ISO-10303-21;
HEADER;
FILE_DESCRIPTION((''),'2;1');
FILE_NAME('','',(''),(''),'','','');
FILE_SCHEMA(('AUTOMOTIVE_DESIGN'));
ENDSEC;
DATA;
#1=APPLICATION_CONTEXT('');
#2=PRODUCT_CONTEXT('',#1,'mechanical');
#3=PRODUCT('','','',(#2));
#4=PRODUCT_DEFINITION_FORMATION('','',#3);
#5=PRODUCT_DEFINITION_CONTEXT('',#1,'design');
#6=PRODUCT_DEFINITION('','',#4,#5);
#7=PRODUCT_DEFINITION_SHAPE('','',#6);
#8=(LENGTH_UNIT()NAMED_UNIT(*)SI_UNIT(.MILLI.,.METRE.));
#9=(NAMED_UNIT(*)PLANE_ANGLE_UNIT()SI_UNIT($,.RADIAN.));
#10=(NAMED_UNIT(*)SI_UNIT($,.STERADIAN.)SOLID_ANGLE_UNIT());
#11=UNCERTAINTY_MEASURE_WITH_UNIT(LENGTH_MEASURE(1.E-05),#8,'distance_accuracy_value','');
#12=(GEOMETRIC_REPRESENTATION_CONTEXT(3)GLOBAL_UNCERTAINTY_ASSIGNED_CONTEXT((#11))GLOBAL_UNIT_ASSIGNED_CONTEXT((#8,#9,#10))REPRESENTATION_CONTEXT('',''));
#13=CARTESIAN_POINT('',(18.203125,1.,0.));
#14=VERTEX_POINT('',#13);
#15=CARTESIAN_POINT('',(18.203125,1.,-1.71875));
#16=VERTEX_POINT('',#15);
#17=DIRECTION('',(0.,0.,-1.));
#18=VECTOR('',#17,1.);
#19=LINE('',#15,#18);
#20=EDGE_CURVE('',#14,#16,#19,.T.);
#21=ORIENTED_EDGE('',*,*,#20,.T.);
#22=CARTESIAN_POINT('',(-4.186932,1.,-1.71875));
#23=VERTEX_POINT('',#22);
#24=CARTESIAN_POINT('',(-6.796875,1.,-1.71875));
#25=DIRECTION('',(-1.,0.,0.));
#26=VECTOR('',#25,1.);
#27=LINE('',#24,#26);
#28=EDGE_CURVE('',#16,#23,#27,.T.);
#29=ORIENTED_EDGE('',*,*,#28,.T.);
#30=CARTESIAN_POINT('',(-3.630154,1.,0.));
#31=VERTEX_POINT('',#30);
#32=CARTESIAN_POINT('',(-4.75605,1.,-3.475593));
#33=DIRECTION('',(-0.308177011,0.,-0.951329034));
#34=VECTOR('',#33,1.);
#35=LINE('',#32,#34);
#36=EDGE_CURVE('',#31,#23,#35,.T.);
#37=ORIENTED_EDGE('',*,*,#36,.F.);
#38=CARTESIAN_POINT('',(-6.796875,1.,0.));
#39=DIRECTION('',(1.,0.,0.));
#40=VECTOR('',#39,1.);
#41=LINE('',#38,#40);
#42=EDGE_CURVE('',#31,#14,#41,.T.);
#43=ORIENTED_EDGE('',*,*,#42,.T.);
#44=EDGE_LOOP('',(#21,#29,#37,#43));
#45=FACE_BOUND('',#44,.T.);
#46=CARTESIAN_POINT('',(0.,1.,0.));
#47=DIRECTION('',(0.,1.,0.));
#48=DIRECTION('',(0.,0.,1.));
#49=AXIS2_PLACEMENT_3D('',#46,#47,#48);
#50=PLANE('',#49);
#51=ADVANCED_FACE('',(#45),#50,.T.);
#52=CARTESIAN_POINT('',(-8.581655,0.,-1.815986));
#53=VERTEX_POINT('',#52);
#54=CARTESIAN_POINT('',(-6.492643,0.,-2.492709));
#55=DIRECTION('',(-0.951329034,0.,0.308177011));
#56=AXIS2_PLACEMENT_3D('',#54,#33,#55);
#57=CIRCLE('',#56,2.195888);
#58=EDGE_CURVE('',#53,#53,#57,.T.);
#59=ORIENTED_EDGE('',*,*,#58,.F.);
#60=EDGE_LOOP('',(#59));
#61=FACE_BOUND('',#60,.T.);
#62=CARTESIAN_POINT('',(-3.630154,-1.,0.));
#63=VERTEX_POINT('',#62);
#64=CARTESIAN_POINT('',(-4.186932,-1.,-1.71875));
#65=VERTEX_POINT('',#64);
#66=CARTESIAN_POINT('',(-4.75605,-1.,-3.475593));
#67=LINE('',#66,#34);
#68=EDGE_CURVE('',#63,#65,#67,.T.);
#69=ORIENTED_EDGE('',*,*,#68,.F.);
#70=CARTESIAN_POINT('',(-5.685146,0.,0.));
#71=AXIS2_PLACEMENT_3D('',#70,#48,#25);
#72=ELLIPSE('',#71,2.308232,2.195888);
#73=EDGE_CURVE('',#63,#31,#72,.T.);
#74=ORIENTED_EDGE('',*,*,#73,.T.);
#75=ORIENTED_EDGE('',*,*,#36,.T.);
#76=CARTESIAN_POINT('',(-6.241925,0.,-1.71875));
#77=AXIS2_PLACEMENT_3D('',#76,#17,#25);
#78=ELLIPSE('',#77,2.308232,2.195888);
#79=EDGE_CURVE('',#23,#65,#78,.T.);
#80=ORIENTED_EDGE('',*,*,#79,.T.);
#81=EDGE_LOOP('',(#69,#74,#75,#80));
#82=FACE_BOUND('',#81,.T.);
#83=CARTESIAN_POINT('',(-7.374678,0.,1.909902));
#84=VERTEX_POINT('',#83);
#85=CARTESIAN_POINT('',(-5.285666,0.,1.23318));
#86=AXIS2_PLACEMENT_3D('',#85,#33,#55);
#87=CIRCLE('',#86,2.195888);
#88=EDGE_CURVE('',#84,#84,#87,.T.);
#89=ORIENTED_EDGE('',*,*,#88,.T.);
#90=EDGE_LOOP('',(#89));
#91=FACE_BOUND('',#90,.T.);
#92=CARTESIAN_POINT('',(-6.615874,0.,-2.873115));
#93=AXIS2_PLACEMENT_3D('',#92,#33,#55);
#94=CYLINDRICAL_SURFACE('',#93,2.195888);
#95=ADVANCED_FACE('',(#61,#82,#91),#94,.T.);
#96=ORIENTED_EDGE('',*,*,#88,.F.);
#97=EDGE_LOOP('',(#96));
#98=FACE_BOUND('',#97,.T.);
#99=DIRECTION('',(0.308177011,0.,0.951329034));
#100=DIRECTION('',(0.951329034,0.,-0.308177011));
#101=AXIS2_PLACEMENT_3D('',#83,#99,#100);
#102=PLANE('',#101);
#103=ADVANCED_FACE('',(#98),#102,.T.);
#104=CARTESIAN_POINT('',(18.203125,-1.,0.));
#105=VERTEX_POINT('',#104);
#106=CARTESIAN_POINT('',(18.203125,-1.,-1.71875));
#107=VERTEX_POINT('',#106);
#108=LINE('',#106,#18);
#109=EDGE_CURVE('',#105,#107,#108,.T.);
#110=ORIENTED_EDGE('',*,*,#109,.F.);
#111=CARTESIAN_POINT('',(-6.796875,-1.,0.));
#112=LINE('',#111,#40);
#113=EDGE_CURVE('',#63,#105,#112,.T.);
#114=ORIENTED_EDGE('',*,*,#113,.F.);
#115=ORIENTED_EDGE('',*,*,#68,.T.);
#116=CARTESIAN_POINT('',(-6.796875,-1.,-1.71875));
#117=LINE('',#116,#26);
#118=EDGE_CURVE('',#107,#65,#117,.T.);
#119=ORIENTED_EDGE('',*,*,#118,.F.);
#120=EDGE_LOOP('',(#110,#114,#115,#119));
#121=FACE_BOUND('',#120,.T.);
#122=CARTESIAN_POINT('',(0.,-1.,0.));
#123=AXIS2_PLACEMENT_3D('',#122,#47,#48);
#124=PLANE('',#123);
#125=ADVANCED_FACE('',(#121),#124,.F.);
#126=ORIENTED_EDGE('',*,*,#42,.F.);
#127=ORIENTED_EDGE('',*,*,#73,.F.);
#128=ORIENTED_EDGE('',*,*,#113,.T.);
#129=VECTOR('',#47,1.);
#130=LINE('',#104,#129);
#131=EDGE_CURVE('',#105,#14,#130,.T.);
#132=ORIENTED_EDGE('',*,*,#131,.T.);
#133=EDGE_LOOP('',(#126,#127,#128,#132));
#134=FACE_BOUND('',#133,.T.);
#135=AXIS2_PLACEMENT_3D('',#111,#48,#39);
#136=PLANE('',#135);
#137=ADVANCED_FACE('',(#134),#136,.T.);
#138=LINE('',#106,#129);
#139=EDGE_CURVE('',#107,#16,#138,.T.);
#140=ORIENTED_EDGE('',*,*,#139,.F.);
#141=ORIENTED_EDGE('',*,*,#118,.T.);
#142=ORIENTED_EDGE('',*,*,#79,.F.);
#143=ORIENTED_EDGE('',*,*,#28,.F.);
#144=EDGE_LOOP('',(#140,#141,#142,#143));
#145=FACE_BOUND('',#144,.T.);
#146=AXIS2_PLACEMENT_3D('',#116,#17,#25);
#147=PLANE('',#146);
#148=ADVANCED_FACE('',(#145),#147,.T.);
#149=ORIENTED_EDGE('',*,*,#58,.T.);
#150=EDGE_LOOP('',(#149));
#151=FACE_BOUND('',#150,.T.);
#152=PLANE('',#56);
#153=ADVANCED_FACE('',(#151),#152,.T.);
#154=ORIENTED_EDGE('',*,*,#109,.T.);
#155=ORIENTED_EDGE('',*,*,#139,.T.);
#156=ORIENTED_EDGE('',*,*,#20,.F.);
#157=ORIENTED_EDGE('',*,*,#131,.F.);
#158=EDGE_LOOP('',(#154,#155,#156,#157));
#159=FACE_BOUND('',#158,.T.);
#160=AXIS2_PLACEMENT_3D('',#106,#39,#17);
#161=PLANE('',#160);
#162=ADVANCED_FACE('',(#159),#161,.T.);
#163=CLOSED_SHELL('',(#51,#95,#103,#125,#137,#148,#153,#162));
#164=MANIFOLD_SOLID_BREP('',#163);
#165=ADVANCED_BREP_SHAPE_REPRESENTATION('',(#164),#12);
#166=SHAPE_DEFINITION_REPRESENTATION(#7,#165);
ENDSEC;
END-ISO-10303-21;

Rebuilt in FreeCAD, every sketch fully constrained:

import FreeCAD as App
import Part
import Sketcher
from FreeCAD import Vector
Q = App.Units.Quantity

doc = App.newDocument("Part")
body = doc.addObject("PartDesign::Body", "Body")

# Sketch on XZ plane
sketch1 = doc.addObject("Sketcher::SketchObject", "Sketch")
body.addObject(sketch1)
sketch1.AttachmentSupport = (doc.XZ_Plane, [""])
sketch1.MapMode = "FlatFace"
sketch1.addGeometry([
    Part.LineSegment(Vector(-6.796875, -1.71875, 0), Vector(-6.796875, 0, 0)),
    Part.LineSegment(Vector(-6.796875, 0, 0), Vector(18.203125, 0, 0)),
    Part.LineSegment(Vector(18.203125, 0, 0), Vector(18.203125, -1.71875, 0)),
    Part.LineSegment(Vector(18.203125, -1.71875, 0), Vector(-6.796875, -1.71875, 0)),
], False)
sketch1.addConstraint([
    Sketcher.Constraint("Coincident", 0, 2, 1, 1),
    Sketcher.Constraint("Coincident", 1, 2, 2, 1),
    Sketcher.Constraint("Coincident", 2, 2, 3, 1),
    Sketcher.Constraint("Coincident", 3, 2, 0, 1),
    Sketcher.Constraint("Vertical", 0),
    Sketcher.Constraint("Horizontal", 1),
    Sketcher.Constraint("Vertical", 2),
    Sketcher.Constraint("Horizontal", 3),
    Sketcher.Constraint("PointOnObject", 0, 2, -1),
    Sketcher.Constraint("DistanceX", 1, 1, 1, 2, Q("25 mm")),
    Sketcher.Constraint("DistanceY", 0, 1, 0, 2, Q("1.71875 mm")),
    Sketcher.Constraint("DistanceX", 0, 2, -1, 1, Q("6.796875 mm")),
])
pad1 = doc.addObject("PartDesign::Pad", "Pad")
body.addObject(pad1)
pad1.Profile = sketch1
pad1.Type = "TwoLengths"
pad1.Length = 1
pad1.Length2 = 1
pad1.Reversed = True

# Sketch on XZ plane
sketch2 = doc.addObject("Sketcher::SketchObject", "Sketch001")
body.addObject(sketch2)
sketch2.AttachmentSupport = (doc.XZ_Plane, [""])
sketch2.MapMode = "FlatFace"
sketch2.addGeometry([
    Part.LineSegment(Vector(-6.492643, -2.492709, 0), Vector(-8.581655, -1.815986, 0)),
    Part.LineSegment(Vector(-8.581655, -1.815986, 0), Vector(-7.374678, 1.909902, 0)),
    Part.LineSegment(Vector(-7.374678, 1.909902, 0), Vector(-5.285666, 1.23318, 0)),
    Part.LineSegment(Vector(-5.285666, 1.23318, 0), Vector(-6.492643, -2.492709, 0)),
], False)
sketch2.addGeometry(Part.LineSegment(Vector(-6.492643, -2.492709, 0), Vector(-5.285666, 1.23318, 0)), True)  # axis
sketch2.addConstraint([
    Sketcher.Constraint("Coincident", 0, 2, 1, 1),
    Sketcher.Constraint("Coincident", 1, 2, 2, 1),
    Sketcher.Constraint("Coincident", 2, 2, 3, 1),
    Sketcher.Constraint("Coincident", 3, 2, 0, 1),
    Sketcher.Constraint("Coincident", 4, 1, 3, 2),
    Sketcher.Constraint("Coincident", 4, 2, 2, 2),
    Sketcher.Constraint("Perpendicular", 0, 1),
    Sketcher.Constraint("Perpendicular", 1, 2),
    Sketcher.Constraint("Perpendicular", 2, 3),
    Sketcher.Constraint("DistanceY", -1, 1, 1, 2, Q("1.909902 mm")),
    Sketcher.Constraint("Distance", 1, Q("3.916509 mm")),
    Sketcher.Constraint("DistanceY", -1, 1, 2, 2, Q("1.23318 mm")),
    Sketcher.Constraint("DistanceY", 3, 2, -1, 1, Q("2.492709 mm")),
    Sketcher.Constraint("DistanceX", 0, 2, -1, 1, Q("8.581655 mm")),
])
revolution = doc.addObject("PartDesign::Revolution", "Revolution")
body.addObject(revolution)
revolution.Profile = sketch2
revolution.ReferenceAxis = (sketch2, ["Axis0"])
revolution.Angle = 360

doc.recompute()
